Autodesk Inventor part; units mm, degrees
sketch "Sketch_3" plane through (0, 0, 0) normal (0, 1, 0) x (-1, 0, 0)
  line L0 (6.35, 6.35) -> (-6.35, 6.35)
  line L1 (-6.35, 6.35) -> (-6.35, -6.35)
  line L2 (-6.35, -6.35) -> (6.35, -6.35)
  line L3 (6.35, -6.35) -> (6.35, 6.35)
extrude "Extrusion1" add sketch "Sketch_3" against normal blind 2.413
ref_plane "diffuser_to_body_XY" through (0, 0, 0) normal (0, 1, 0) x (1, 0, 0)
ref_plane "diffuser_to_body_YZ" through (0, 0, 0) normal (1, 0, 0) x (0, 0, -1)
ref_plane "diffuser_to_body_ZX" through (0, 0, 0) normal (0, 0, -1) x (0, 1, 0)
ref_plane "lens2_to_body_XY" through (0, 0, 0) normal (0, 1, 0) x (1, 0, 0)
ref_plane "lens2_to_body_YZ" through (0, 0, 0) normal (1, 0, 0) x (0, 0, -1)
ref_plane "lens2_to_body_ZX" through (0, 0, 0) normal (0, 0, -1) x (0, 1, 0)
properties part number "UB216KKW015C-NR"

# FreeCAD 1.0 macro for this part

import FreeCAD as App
import Part
import Sketcher
Q = App.Units.Quantity


def add_polygon(sketch, points):
    """Adds a closed chain of lines whose ends are joined by coincident constraints."""
    first, n = sketch.GeometryCount, len(points)
    for a, b in zip(points, points[1:] + points[:1]):
        sketch.addGeometry(Part.LineSegment(App.Vector(*a, 0), App.Vector(*b, 0)), False)
    for i in range(n):
        sketch.addConstraint(Sketcher.Constraint("Coincident", first + i, 2, first + (i + 1) % n, 1))

doc = App.newDocument("Part")
body = doc.addObject("PartDesign::Body", "Body")

sketch1 = body.newObject("Sketcher::SketchObject", "Sketch")
sketch1.AttachmentSupport = (doc.getObject("XZ_Plane"), [""])
sketch1.MapMode = "FlatFace"
add_polygon(sketch1, [(-6.35, -6.35), (-6.35, 6.35), (6.35, 6.35), (6.35, -6.35)])
sketch1.addConstraint(Sketcher.Constraint("Vertical", 0))
sketch1.addConstraint(Sketcher.Constraint("Horizontal", 1))
sketch1.addConstraint(Sketcher.Constraint("Vertical", 2))
sketch1.addConstraint(Sketcher.Constraint("Horizontal", 3))
sketch1.addConstraint(Sketcher.Constraint("Symmetric", 0, 2, 2, 2, -1, 1))
sketch1.addConstraint(Sketcher.Constraint("Equal", 3, 0))
sketch1.addConstraint(Sketcher.Constraint("DistanceX", 1, 1, 1, 2, Q("0.5 in")))
pad1 = body.newObject("PartDesign::Pad", "Pad")
pad1.Profile = sketch1
pad1.Length = Q("0.095 in")

doc.recompute()
